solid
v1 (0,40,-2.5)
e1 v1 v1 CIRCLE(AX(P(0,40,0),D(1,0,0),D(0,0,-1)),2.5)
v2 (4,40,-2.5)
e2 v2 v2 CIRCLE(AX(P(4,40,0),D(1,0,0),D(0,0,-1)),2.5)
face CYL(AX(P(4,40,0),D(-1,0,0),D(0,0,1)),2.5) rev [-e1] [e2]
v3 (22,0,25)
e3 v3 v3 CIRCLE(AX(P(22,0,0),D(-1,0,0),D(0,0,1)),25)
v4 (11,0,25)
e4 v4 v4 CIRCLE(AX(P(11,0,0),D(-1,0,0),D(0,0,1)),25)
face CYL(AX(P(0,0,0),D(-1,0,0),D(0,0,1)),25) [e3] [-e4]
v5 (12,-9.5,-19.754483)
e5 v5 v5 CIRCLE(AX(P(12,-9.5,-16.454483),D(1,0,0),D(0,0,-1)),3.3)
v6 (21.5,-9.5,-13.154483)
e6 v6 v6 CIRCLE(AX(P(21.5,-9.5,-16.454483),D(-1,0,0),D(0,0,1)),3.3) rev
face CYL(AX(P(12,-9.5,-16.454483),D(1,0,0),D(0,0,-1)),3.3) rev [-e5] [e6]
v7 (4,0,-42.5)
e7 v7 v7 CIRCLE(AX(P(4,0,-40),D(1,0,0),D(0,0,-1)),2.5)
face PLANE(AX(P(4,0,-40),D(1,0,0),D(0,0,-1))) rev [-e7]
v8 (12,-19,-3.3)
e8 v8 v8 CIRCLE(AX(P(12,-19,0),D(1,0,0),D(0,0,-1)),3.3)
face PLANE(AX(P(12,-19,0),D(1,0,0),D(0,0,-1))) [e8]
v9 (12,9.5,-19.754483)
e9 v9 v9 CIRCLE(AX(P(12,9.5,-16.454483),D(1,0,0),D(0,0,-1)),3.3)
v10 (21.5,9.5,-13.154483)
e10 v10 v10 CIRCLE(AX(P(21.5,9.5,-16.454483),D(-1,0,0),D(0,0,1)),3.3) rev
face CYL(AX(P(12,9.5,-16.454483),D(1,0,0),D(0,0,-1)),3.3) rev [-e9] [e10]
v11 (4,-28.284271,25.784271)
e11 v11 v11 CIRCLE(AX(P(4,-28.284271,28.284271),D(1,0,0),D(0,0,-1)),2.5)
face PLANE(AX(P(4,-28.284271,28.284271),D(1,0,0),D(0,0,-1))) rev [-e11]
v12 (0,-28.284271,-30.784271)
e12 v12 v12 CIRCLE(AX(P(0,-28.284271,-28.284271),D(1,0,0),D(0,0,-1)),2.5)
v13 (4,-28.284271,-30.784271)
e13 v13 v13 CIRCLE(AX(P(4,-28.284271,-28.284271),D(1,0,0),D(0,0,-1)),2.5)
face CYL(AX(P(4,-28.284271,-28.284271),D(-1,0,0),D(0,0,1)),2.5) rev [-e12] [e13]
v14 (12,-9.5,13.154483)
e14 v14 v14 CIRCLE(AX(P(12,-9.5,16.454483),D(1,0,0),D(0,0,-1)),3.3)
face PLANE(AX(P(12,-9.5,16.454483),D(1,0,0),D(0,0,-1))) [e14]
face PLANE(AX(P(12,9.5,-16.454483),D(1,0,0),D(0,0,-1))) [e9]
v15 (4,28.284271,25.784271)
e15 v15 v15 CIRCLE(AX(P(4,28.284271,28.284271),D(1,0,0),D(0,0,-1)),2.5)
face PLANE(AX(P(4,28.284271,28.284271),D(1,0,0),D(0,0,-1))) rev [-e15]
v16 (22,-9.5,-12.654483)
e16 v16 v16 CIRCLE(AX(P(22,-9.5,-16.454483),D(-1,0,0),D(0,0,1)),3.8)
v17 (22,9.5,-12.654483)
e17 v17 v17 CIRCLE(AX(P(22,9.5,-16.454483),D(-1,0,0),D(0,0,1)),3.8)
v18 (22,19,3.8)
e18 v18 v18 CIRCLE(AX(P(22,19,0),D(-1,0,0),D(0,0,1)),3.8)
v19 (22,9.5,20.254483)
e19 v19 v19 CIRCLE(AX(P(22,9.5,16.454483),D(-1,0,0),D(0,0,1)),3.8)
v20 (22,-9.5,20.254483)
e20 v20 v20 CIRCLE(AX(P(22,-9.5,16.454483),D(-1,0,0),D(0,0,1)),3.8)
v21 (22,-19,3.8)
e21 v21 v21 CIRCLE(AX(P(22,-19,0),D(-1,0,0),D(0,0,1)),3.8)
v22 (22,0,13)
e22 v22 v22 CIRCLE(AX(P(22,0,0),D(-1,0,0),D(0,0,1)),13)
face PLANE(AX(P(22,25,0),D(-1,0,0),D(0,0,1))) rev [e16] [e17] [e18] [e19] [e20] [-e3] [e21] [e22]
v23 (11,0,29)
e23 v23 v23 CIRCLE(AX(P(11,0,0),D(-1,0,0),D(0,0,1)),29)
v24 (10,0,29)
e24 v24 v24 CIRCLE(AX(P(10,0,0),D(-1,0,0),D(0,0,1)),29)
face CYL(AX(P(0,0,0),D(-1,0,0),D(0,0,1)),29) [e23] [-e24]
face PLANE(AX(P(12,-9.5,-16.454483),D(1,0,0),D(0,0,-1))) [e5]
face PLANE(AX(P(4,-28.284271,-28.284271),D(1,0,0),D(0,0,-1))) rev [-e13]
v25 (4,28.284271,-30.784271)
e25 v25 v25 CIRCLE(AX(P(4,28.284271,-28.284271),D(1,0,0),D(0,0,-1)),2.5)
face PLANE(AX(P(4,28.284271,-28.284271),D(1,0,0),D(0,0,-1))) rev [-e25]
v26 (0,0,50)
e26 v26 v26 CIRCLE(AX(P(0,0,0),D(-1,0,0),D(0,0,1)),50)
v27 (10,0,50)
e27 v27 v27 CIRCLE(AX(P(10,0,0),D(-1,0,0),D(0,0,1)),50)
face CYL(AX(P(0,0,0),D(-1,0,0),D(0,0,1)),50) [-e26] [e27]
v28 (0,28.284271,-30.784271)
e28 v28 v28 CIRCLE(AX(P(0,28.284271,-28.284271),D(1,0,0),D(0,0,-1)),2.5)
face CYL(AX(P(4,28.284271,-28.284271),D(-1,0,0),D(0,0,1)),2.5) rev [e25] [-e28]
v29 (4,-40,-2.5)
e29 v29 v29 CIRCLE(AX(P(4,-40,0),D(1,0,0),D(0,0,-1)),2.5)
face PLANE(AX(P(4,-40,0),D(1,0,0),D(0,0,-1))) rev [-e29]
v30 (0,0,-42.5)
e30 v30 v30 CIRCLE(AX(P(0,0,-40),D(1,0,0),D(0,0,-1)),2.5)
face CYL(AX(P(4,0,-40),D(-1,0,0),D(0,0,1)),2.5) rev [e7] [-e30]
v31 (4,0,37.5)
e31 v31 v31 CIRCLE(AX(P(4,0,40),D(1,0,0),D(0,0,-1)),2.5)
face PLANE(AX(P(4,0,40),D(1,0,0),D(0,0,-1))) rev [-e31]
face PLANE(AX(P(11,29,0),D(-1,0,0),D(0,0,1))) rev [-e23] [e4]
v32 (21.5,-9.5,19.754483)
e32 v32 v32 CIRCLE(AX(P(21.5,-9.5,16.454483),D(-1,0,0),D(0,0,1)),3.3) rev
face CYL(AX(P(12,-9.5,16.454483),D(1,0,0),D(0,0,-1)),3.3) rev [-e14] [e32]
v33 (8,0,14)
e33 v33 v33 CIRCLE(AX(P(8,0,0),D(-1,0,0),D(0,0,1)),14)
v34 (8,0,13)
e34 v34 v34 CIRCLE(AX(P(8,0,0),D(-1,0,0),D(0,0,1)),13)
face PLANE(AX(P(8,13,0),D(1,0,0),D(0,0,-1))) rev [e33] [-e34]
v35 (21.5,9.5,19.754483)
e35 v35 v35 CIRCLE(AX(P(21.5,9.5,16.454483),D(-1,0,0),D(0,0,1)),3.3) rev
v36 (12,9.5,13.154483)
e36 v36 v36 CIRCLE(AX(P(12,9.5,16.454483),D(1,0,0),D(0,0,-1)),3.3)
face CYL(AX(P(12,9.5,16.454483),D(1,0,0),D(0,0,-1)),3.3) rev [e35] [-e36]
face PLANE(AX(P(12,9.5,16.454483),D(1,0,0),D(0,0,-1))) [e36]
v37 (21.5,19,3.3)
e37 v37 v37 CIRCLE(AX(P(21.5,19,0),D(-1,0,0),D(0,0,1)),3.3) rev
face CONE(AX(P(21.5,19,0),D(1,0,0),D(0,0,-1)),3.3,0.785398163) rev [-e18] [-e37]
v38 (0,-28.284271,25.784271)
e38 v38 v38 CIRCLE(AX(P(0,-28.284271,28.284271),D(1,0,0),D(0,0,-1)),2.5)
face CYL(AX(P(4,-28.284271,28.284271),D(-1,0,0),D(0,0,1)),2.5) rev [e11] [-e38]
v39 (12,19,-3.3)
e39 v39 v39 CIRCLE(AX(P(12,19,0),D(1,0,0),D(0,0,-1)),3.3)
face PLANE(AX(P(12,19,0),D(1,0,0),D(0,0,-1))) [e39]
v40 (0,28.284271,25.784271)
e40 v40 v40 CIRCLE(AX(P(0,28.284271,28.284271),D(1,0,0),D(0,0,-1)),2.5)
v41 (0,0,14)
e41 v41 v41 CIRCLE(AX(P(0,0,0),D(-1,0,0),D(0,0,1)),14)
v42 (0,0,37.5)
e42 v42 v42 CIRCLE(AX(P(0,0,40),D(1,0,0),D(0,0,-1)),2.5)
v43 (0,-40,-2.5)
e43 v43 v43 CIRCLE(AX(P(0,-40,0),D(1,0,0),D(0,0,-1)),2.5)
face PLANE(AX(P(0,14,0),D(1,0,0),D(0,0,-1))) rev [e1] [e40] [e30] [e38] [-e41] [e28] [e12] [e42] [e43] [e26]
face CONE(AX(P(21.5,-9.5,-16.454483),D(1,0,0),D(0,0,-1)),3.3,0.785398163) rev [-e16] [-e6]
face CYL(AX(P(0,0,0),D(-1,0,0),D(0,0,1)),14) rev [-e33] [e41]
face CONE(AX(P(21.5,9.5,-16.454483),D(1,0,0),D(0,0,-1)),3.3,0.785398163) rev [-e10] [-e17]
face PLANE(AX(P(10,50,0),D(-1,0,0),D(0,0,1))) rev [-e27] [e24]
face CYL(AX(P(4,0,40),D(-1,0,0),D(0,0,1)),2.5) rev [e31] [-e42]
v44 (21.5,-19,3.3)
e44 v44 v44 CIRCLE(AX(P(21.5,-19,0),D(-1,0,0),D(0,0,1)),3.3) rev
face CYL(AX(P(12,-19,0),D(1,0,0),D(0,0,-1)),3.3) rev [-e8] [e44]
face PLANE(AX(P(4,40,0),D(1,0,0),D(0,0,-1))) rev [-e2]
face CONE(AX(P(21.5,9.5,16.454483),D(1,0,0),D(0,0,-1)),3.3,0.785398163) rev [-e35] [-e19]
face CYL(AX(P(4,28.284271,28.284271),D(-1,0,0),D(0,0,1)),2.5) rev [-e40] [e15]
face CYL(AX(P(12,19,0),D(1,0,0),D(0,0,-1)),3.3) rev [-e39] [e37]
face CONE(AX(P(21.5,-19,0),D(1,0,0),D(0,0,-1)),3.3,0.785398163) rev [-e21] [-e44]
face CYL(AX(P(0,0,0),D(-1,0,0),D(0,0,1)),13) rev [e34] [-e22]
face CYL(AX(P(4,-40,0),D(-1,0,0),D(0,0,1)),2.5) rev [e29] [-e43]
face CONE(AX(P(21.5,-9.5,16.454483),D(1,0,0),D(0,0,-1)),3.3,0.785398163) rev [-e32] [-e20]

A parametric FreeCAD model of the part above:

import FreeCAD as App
import Part
import Sketcher

V = App.Vector
Q = App.Units.Quantity


def edges_at(feature, points):
    """Names of the edges that pass closest to the given points."""
    edges = feature.Shape.Edges
    near = lambda p: min(range(len(edges)), key=lambda i: edges[i].distToShape(Part.Vertex(*p))[0])
    return sorted({f"Edge{near(p) + 1}" for p in points})


def add_polygon(sketch, points):
    """Adds a closed chain of lines whose ends are joined by coincident constraints."""
    first, n = sketch.GeometryCount, len(points)
    for a, b in zip(points, points[1:] + points[:1]):
        sketch.addGeometry(Part.LineSegment(App.Vector(*a, 0), App.Vector(*b, 0)), False)
    for i in range(n):
        sketch.addConstraint(Sketcher.Constraint("Coincident", first + i, 2, first + (i + 1) % n, 1))

doc = App.newDocument("Part")
body = doc.addObject("PartDesign::Body", "Body")

sketch1 = body.newObject("Sketcher::SketchObject", "Sketch")
sketch1.AttachmentSupport = (doc.getObject("XY_Plane"), [""])
sketch1.MapMode = "FlatFace"
add_polygon(sketch1, [(10, 50), (0, 50), (0, 14), (8, 14), (8, 13), (22, 13), (22, 25), (11, 25), (11, 29), (10, 29)])
sketch1.addConstraint(Sketcher.Constraint("Horizontal", 0))
sketch1.addConstraint(Sketcher.Constraint("Vertical", 1))
sketch1.addConstraint(Sketcher.Constraint("Horizontal", 2))
sketch1.addConstraint(Sketcher.Constraint("Vertical", 3))
sketch1.addConstraint(Sketcher.Constraint("Horizontal", 4))
sketch1.addConstraint(Sketcher.Constraint("Vertical", 5))
sketch1.addConstraint(Sketcher.Constraint("Horizontal", 6))
sketch1.addConstraint(Sketcher.Constraint("Vertical", 7))
sketch1.addConstraint(Sketcher.Constraint("Horizontal", 8))
sketch1.addConstraint(Sketcher.Constraint("Vertical", 9))
sketch1.addConstraint(Sketcher.Constraint("PointOnObject", 0, 2, -2))
sketch1.addConstraint(Sketcher.Constraint("Equal", 8, 3))
sketch1.addConstraint(Sketcher.Constraint("DistanceX", 0, 2, 0, 1, Q("10 mm")))
sketch1.addConstraint(Sketcher.Constraint("DistanceX", 2, 1, 2, 2, Q("8 mm")))
sketch1.addConstraint(Sketcher.Constraint("DistanceX", 4, 1, 4, 2, Q("14 mm")))
sketch1.addConstraint(Sketcher.Constraint("DistanceX", 6, 2, 6, 1, Q("11 mm")))
sketch1.addConstraint(Sketcher.Constraint("DistanceY", 1, 2, 1, 1, Q("36 mm")))
sketch1.addConstraint(Sketcher.Constraint("DistanceY", 5, 1, 5, 2, Q("12 mm")))
sketch1.addConstraint(Sketcher.Constraint("DistanceY", 7, 1, 7, 2, Q("4 mm")))
sketch1.addConstraint(Sketcher.Constraint("DistanceY", -1, 1, 0, 2, Q("50 mm")))
revolution = body.newObject("PartDesign::Revolution", "Revolution")
revolution.Profile = sketch1
revolution.ReferenceAxis = (sketch1, ["H_Axis"])
revolution.Angle = 360

sketch2 = body.newObject("Sketcher::SketchObject", "Sketch001")
sketch2.AttachmentSupport = (doc.getObject("YZ_Plane"), [""])
sketch2.MapMode = "FlatFace"
sketch2.addGeometry(Part.Circle(V(40, 0, 0), V(0, 0, 1), 2.5), False)
sketch2.addGeometry(Part.Circle(V(28.3, -28.3, 0), V(0, 0, 1), 2.5), False)
sketch2.addGeometry(Part.Circle(V(0, -40, 0), V(0, 0, 1), 2.5), False)
sketch2.addGeometry(Part.Circle(V(-28.3, -28.3, 0), V(0, 0, 1), 2.5), False)
sketch2.addGeometry(Part.Circle(V(-40, 0, 0), V(0, 0, 1), 2.5), False)
sketch2.addGeometry(Part.Circle(V(-28.3, 28.3, 0), V(0, 0, 1), 2.5), False)
sketch2.addGeometry(Part.Circle(V(0, 40, 0), V(0, 0, 1), 2.5), False)
sketch2.addGeometry(Part.Circle(V(28.3, 28.3, 0), V(0, 0, 1), 2.5), False)
sketch2.addConstraint(Sketcher.Constraint("Equal", 0, 1))
sketch2.addConstraint(Sketcher.Constraint("Equal", 1, 2))
sketch2.addConstraint(Sketcher.Constraint("Equal", 2, 3))
sketch2.addConstraint(Sketcher.Constraint("Equal", 3, 4))
sketch2.addConstraint(Sketcher.Constraint("Equal", 4, 5))
sketch2.addConstraint(Sketcher.Constraint("Equal", 5, 6))
sketch2.addConstraint(Sketcher.Constraint("Equal", 6, 7))
sketch2.addConstraint(Sketcher.Constraint("Symmetric", 0, 3, 4, 3, -1, 1))
sketch2.addConstraint(Sketcher.Constraint("Symmetric", 1, 3, 5, 3, -1, 1))
sketch2.addConstraint(Sketcher.Constraint("Symmetric", 2, 3, 6, 3, -1, 1))
sketch2.addConstraint(Sketcher.Constraint("Symmetric", 3, 3, 7, 3, -1, 1))
sketch2.addConstraint(Sketcher.Constraint("Symmetric", 1, 3, 3, 3, -2))
sketch2.addConstraint(Sketcher.Constraint("PointOnObject", 0, 3, -1))
sketch2.addConstraint(Sketcher.Constraint("PointOnObject", 2, 3, -2))
sketch2.addConstraint(Sketcher.Constraint("Diameter", 0, Q("5 mm")))
sketch2.addConstraint(Sketcher.Constraint("DistanceX", -1, 1, 0, 3, Q("40 mm")))
sketch2.addConstraint(Sketcher.Constraint("DistanceY", 2, 3, -1, 1, Q("40 mm")))
sketch2.addConstraint(Sketcher.Constraint("DistanceX", -1, 1, 1, 3, Q("28.284271 mm")))
sketch2.addConstraint(Sketcher.Constraint("DistanceY", 1, 3, -1, 1, Q("28.284271 mm")))
pocket1 = body.newObject("PartDesign::Pocket", "Pocket")
pocket1.Profile = sketch2
pocket1.Length = 4
pocket1.Reversed = True

sketch3 = body.newObject("Sketcher::SketchObject", "Sketch002")
sketch3.AttachmentSupport = (doc.getObject("YZ_Plane"), [""])
sketch3.MapMode = "FlatFace"
sketch3.AttachmentOffset = App.Placement(V(0, 0, 22), App.Rotation())
sketch3.addGeometry(Part.Circle(V(19, 0, 0), V(0, 0, 1), 3.3), False)
sketch3.addGeometry(Part.Circle(V(9.5, -16.5, 0), V(0, 0, 1), 3.3), False)
sketch3.addGeometry(Part.Circle(V(-9.5, -16.5, 0), V(0, 0, 1), 3.3), False)
sketch3.addGeometry(Part.Circle(V(-19, 0, 0), V(0, 0, 1), 3.3), False)
sketch3.addGeometry(Part.Circle(V(-9.5, 16.5, 0), V(0, 0, 1), 3.3), False)
sketch3.addGeometry(Part.Circle(V(9.5, 16.5, 0), V(0, 0, 1), 3.3), False)
sketch3.addConstraint(Sketcher.Constraint("Equal", 0, 1))
sketch3.addConstraint(Sketcher.Constraint("Equal", 1, 2))
sketch3.addConstraint(Sketcher.Constraint("Equal", 2, 3))
sketch3.addConstraint(Sketcher.Constraint("Equal", 3, 4))
sketch3.addConstraint(Sketcher.Constraint("Equal", 4, 5))
sketch3.addConstraint(Sketcher.Constraint("Symmetric", 0, 3, 3, 3, -1, 1))
sketch3.addConstraint(Sketcher.Constraint("Symmetric", 1, 3, 4, 3, -1, 1))
sketch3.addConstraint(Sketcher.Constraint("Symmetric", 2, 3, 5, 3, -1, 1))
sketch3.addConstraint(Sketcher.Constraint("Symmetric", 1, 3, 2, 3, -2))
sketch3.addConstraint(Sketcher.Constraint("PointOnObject", 0, 3, -1))
sketch3.addConstraint(Sketcher.Constraint("Diameter", 0, Q("6.6 mm")))
sketch3.addConstraint(Sketcher.Constraint("DistanceX", -1, 1, 0, 3, Q("19 mm")))
sketch3.addConstraint(Sketcher.Constraint("DistanceX", 2, 3, 1, 3, Q("19 mm")))
sketch3.addConstraint(Sketcher.Constraint("DistanceY", 1, 3, -1, 1, Q("16.454483 mm")))
pocket2 = body.newObject("PartDesign::Pocket", "Pocket001")
pocket2.Profile = sketch3
pocket2.Length = 10
doc.recompute()

chamfer = body.newObject("PartDesign::Chamfer", "Chamfer")
chamfer.Base = (pocket2, edges_at(pocket2, [
    (22, 19, 3.3),
    (22, 9.5, 19.754),
    (22, -9.5, 19.754),
    (22, -19, 3.3),
    (22, -9.5, -13.154),
    (22, 9.5, -13.154),
]))
chamfer.Size = 0.5

doc.recompute()
